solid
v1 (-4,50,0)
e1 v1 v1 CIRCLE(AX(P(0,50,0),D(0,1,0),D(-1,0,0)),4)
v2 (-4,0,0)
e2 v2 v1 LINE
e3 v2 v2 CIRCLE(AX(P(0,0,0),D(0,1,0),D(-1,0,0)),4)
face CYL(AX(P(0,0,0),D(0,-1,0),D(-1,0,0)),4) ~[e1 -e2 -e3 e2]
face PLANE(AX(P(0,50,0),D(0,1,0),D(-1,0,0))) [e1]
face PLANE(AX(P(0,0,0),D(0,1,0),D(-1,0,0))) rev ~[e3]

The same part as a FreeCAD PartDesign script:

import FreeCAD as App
import Part
import Sketcher
Q = App.Units.Quantity

doc = App.newDocument("Part")
body = doc.addObject("PartDesign::Body", "Body")

sketch1 = doc.addObject("Sketcher::SketchObject", "Sketch")
body.addObject(sketch1)
sketch1.AttachmentSupport = (doc.XZ_Plane, [""])
sketch1.MapMode = "FlatFace"
sketch1.addGeometry(Part.Circle(App.Vector(0, 0, 0), App.Vector(0, 0, 1), 4), False)
sketch1.addConstraint([
    Sketcher.Constraint("Coincident", 0, 3, -1, 1),
    Sketcher.Constraint("Diameter", 0, Q("8 mm")),
])
pad1 = doc.addObject("PartDesign::Pad", "Pad")
body.addObject(pad1)
pad1.Profile = sketch1
pad1.Length = 50
pad1.Reversed = True

doc.recompute()
